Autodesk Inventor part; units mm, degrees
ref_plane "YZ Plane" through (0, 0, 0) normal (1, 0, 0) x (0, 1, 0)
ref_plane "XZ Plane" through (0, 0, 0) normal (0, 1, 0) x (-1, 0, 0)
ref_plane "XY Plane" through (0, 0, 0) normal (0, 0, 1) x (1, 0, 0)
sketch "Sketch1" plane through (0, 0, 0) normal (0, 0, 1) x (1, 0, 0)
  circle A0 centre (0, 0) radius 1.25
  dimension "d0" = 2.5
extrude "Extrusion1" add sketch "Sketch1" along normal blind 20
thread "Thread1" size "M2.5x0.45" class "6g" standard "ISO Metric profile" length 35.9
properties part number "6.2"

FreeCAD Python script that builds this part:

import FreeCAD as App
import Part
import Sketcher
from FreeCAD import Vector

doc = App.newDocument("Part")
params = doc.addObject("Spreadsheet::Sheet", "Params")
for row, (alias, value) in enumerate([
    ("sketch1_diameter", "2.5 mm"),
    ("pad1_length", "20 mm"),
], start=1):
    params.set(f"A{row}", alias)
    params.set(f"B{row}", "=" + value)
    params.setAlias(f"B{row}", alias)

body = doc.addObject("PartDesign::Body", "Body")

sketch1 = doc.addObject("Sketcher::SketchObject", "Sketch")
body.addObject(sketch1)
sketch1.AttachmentSupport = (doc.XY_Plane, [""])
sketch1.MapMode = "FlatFace"
sketch1.addGeometry(Part.Circle(Vector(0, 0, 0), Vector(0, 0, 1), 1.2), False)
sketch1.addConstraint(Sketcher.Constraint("Coincident", 0, 3, -1, 1))
sketch1.addConstraint(Sketcher.Constraint("Diameter", 0, 2.5))
sketch1.setExpression("Constraints[1]", "Params.sketch1_diameter")
pad1 = doc.addObject("PartDesign::Pad", "Pad")
body.addObject(pad1)
pad1.Profile = sketch1
pad1.setExpression("Length", "Params.pad1_length")

doc.recompute()
